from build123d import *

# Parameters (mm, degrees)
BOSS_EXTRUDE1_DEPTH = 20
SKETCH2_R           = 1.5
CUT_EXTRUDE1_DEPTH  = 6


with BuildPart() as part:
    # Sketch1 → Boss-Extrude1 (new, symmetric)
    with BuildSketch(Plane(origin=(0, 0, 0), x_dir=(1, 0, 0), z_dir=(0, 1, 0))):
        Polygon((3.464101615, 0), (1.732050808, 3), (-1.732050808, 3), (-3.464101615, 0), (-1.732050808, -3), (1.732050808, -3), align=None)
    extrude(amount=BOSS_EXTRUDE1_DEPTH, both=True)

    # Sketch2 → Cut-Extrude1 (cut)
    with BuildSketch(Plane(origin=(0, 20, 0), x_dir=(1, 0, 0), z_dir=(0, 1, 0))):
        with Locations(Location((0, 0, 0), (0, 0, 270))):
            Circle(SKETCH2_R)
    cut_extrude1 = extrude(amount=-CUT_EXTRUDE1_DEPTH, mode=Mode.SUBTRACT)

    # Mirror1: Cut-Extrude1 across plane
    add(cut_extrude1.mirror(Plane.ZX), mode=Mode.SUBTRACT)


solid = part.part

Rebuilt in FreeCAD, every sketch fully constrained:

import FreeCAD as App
import Part
import Sketcher
Q = App.Units.Quantity


def add_polygon(sketch, points):
    """Adds a closed chain of lines whose ends are joined by coincident constraints."""
    first, n = sketch.GeometryCount, len(points)
    for a, b in zip(points, points[1:] + points[:1]):
        sketch.addGeometry(Part.LineSegment(App.Vector(*a, 0), App.Vector(*b, 0)), False)
    for i in range(n):
        sketch.addConstraint(Sketcher.Constraint("Coincident", first + i, 2, first + (i + 1) % n, 1))

doc = App.newDocument("Part")
params = doc.addObject("Spreadsheet::Sheet", "Params")
for row, (alias, value) in enumerate([
    ("pad1_length", "40 mm"),
    ("sketch2_diameter", "3 mm"),
    ("pocket1_length", "6 mm"),
], start=1):
    params.set(f"A{row}", alias)
    params.set(f"B{row}", "=" + value)
    params.setAlias(f"B{row}", alias)

body = doc.addObject("PartDesign::Body", "Body")

# Sketch on XZ plane
sketch1 = body.newObject("Sketcher::SketchObject", "Sketch")
sketch1.AttachmentSupport = (doc.getObject("XZ_Plane"), [""])
sketch1.MapMode = "FlatFace"
add_polygon(sketch1, [(3.464102, 0), (1.732051, -3), (-1.732051, -3), (-3.464102, 0), (-1.732051, 3), (1.732051, 3)])  # lines 0-5
sketch1.addConstraint([
    Sketcher.Constraint("Horizontal", 1),
    Sketcher.Constraint("Horizontal", 4),
    Sketcher.Constraint("Symmetric", 0, 2, 3, 2, -1, 1),
    Sketcher.Constraint("Symmetric", 2, 2, 5, 2, -1, 1),
    Sketcher.Constraint("PointOnObject", 2, 2, -1),
    Sketcher.Constraint("Parallel", 2, 5),
    Sketcher.Constraint("Vertical", 1, 2, 3, 2),
    Sketcher.Constraint("Angle", 0, Q("-120 deg")),
    Sketcher.Constraint("DistanceY", 0, 2, -1, 1, Q("3 mm")),
    Sketcher.Constraint("DistanceX", 1, 2, 1, 1, Q("3.464102 mm")),
])
pad1 = body.newObject("PartDesign::Pad", "Pad")
pad1.Profile = sketch1
pad1.setExpression("Length", "Params.pad1_length")
pad1.Midplane = True

# Sketch on XZ plane
sketch2 = body.newObject("Sketcher::SketchObject", "Sketch001")
sketch2.AttachmentSupport = (doc.getObject("XZ_Plane"), [""])
sketch2.MapMode = "FlatFace"
sketch2.AttachmentOffset = App.Placement(App.Vector(0, 0, -20), App.Rotation())
sketch2.addGeometry(Part.Circle(App.Vector(0, 0, 0), App.Vector(0, 0, 1), 1.5), False)
sketch2.addConstraint([
    Sketcher.Constraint("Coincident", 0, 3, -1, 1),
    Sketcher.Constraint("Diameter", 0, Q("3 mm")),
])
sketch2.setExpression("Constraints[1]", "Params.sketch2_diameter")
pocket1 = body.newObject("PartDesign::Pocket", "Pocket")
pocket1.Profile = sketch2
pocket1.setExpression("Length", "Params.pocket1_length")
pocket1.Reversed = True
doc.recompute()

mirrored = body.newObject("PartDesign::Mirrored", "Mirrored")
mirrored.Originals = [pocket1]
mirrored.MirrorPlane = (doc.getObject("XZ_Plane"), [""])
body.Tip = mirrored

doc.recompute()
